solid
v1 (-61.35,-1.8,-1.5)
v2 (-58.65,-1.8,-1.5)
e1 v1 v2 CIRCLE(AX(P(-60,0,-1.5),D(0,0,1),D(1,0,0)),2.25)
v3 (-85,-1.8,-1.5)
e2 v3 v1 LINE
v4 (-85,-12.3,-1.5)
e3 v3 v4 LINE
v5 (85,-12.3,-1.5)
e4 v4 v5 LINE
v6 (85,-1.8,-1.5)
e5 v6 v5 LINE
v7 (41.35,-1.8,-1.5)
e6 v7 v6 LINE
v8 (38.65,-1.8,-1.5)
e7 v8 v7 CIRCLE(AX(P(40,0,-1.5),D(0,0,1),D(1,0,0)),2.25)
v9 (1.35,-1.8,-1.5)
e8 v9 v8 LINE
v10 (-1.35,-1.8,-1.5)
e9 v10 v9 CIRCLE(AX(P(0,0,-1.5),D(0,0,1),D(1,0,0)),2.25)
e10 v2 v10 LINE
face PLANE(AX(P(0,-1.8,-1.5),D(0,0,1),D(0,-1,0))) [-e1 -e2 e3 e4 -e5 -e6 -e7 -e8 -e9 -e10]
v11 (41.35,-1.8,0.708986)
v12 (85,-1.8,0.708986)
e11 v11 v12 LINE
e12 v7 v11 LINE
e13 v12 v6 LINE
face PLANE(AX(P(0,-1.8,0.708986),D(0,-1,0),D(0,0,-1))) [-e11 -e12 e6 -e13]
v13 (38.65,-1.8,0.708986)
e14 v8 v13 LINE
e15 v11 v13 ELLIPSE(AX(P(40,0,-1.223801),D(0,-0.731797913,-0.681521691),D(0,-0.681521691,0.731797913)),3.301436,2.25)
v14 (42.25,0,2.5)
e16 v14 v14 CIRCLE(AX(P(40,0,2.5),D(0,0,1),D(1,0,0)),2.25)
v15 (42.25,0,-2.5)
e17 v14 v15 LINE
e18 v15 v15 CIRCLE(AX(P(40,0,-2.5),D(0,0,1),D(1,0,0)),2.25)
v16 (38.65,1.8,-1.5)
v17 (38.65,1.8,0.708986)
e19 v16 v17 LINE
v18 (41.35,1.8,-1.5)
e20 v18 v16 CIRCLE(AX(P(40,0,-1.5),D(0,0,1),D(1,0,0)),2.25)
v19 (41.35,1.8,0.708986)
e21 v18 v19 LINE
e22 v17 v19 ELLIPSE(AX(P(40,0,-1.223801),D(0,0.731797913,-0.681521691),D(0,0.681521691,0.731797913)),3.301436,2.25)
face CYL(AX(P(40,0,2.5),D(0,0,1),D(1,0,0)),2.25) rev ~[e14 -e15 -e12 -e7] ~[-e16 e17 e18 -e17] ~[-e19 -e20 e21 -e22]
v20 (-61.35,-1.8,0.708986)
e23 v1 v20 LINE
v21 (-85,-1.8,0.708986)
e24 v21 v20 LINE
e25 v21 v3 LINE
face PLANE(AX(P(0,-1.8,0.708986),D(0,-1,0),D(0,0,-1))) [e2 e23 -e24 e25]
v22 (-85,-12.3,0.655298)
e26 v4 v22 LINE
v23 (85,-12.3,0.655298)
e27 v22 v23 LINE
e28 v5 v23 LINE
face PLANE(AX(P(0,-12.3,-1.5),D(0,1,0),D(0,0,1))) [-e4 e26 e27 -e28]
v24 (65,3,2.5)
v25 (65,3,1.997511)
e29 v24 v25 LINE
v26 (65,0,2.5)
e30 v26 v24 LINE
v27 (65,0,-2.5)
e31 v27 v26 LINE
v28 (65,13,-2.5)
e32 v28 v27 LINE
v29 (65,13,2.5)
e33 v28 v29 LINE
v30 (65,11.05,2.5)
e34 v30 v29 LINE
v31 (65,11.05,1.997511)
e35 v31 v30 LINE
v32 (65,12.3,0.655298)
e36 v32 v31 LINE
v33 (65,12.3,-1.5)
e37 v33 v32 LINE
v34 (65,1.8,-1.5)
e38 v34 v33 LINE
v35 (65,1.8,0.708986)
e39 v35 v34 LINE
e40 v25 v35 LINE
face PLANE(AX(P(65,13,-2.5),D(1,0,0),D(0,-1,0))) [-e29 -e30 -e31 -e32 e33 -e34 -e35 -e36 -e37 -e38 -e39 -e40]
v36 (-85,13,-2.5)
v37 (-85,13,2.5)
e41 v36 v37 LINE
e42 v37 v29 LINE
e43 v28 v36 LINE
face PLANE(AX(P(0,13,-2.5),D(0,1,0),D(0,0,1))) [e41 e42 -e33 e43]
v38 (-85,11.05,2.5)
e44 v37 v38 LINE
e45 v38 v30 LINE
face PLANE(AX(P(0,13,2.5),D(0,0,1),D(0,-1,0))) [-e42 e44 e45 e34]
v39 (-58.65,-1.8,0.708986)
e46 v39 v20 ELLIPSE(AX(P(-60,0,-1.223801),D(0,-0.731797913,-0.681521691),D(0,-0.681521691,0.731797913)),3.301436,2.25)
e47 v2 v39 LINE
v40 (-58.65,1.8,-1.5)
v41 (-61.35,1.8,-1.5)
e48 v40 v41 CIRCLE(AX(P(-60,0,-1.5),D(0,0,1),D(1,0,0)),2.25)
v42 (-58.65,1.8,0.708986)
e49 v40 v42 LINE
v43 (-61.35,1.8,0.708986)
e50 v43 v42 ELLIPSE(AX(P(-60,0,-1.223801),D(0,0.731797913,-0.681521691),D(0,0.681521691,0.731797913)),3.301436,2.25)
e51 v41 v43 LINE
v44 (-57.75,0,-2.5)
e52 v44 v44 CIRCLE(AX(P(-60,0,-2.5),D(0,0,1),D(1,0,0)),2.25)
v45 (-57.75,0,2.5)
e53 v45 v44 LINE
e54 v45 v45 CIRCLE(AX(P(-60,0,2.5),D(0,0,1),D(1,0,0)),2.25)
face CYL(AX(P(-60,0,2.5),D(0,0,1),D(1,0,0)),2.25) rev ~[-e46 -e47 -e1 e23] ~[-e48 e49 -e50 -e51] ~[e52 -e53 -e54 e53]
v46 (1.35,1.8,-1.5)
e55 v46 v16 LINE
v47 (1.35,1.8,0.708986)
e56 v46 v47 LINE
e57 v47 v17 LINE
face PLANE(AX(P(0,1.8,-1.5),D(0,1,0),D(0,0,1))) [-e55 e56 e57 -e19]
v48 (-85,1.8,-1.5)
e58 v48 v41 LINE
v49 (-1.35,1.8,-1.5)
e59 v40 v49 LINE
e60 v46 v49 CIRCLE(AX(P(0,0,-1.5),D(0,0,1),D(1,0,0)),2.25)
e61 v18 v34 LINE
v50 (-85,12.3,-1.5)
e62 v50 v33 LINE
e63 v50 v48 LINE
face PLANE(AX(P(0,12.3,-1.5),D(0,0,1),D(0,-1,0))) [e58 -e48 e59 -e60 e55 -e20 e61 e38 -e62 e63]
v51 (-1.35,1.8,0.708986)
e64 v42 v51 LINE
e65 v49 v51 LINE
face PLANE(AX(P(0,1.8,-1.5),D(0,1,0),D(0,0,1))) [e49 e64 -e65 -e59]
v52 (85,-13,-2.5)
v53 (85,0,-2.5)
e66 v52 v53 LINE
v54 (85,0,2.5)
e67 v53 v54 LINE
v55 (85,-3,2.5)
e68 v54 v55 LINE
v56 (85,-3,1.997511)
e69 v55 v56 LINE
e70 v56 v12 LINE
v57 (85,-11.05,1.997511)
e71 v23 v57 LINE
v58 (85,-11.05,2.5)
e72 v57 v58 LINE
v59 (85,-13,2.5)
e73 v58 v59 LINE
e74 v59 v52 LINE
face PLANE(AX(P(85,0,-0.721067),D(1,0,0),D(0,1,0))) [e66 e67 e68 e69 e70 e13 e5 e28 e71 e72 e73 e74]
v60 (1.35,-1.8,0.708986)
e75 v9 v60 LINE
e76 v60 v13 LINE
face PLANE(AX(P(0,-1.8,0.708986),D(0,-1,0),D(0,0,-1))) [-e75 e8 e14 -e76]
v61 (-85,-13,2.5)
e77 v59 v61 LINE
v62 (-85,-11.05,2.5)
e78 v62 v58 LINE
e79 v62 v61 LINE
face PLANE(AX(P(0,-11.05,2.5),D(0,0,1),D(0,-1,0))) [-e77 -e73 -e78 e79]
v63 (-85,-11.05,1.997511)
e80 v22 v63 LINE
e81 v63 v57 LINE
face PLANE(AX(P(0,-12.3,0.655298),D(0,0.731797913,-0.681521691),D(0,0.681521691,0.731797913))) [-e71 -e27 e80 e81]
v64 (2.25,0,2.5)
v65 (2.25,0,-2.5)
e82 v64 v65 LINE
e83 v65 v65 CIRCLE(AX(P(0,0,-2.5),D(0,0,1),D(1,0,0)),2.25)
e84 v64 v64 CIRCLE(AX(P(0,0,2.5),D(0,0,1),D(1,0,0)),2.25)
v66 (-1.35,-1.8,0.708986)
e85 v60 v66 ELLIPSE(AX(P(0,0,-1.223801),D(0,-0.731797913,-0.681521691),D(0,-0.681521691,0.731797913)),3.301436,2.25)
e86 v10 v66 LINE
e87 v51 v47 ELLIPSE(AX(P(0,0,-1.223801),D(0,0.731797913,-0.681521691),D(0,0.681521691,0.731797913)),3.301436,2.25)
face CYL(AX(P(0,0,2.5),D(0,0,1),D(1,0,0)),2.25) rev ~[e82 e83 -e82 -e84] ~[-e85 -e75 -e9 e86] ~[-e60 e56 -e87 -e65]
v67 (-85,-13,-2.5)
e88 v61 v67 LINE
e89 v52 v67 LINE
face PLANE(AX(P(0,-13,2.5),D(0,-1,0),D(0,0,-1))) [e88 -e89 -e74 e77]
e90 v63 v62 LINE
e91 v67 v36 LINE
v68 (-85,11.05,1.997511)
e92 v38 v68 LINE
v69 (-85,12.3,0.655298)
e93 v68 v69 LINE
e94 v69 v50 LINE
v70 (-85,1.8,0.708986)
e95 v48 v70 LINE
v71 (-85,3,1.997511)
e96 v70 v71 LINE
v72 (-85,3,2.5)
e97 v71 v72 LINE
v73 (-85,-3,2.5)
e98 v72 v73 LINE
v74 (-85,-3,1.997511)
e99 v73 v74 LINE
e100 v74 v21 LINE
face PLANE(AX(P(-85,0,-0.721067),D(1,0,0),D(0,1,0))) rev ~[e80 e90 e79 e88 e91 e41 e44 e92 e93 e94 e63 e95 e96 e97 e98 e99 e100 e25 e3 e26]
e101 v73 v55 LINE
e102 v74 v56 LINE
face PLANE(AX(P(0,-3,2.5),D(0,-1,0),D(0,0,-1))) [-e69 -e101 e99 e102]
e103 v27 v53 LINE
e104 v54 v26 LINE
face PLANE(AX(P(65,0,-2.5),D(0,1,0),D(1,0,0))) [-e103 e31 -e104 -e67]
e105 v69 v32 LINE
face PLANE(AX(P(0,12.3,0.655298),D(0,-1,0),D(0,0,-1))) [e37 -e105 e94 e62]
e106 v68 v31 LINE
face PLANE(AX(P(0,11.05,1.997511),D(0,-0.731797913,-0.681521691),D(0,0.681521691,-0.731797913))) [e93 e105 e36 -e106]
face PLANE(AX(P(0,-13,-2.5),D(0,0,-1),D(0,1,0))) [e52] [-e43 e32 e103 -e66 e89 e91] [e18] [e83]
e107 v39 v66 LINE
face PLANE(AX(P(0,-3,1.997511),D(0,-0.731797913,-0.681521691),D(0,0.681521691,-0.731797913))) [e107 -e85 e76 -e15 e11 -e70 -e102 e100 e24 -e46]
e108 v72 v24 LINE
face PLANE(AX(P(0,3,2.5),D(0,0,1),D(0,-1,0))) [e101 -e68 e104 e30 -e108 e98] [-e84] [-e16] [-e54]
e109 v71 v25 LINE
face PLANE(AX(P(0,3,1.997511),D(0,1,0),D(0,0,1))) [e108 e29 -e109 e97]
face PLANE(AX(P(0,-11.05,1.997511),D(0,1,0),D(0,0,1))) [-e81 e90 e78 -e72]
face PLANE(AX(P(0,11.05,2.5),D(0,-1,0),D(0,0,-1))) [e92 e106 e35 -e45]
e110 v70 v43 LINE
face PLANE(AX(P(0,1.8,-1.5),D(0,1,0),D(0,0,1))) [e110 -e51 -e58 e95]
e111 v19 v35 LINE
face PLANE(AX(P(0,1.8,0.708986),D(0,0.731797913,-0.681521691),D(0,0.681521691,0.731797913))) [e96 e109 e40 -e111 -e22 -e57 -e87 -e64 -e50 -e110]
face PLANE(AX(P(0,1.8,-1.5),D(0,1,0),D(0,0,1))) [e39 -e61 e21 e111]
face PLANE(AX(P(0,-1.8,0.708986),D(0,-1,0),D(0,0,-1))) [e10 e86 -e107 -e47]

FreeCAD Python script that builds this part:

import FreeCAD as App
import Part
import Sketcher

V = App.Vector


def add_polygon(sketch, points):
    """Adds a closed chain of lines whose ends are joined by coincident constraints."""
    first, n = sketch.GeometryCount, len(points)
    for a, b in zip(points, points[1:] + points[:1]):
        sketch.addGeometry(Part.LineSegment(App.Vector(*a, 0), App.Vector(*b, 0)), False)
    for i in range(n):
        sketch.addConstraint(Sketcher.Constraint("Coincident", first + i, 2, first + (i + 1) % n, 1))

doc = App.newDocument("Part")
params = doc.addObject("Spreadsheet::Sheet", "Params")
for row, (alias, value) in enumerate([
    ("sketch1_width", "6 mm"),
    ("sketch1_width2", "26 mm"),
    ("sketch1_height", "5 mm"),
    ("sketch1_width3", "10.5 mm"),
    ("sketch1_width4", "1.95 mm"),
    ("pad1_length", "170 mm"),
    ("sketch2_width", "20 mm"),
    ("sketch2_height", "13 mm"),
    ("sketch3_diameter", "4.5 mm"),
], start=1):
    params.set(f"A{row}", alias)
    params.set(f"B{row}", "=" + value)
    params.setAlias(f"B{row}", alias)

body = doc.addObject("PartDesign::Body", "Body")

# Sketch on YZ plane
sketch1 = body.newObject("Sketcher::SketchObject", "Sketch")
sketch1.AttachmentSupport = (doc.getObject("YZ_Plane"), [""])
sketch1.MapMode = "FlatFace"
add_polygon(sketch1, [(13, -2.5), (13, 2.5), (11.1, 2.5), (11.1, 2), (12.3, 0.7), (12.3, -1.5), (1.8, -1.5), (1.8, 0.7), (3, 2), (3, 2.5), (-3, 2.5), (-3, 2), (-1.8, 0.7), (-1.8, -1.5), (-12.3, -1.5), (-12.3, 0.7), (-11.1, 2), (-11.1, 2.5), (-13, 2.5), (-13, -2.5)])  # lines 0-19
sketch1.addConstraint([
    Sketcher.Constraint("Vertical", 0),
    Sketcher.Constraint("Horizontal", 1),
    Sketcher.Constraint("Vertical", 2),
    Sketcher.Constraint("Vertical", 4),
    Sketcher.Constraint("Horizontal", 5),
    Sketcher.Constraint("Vertical", 6),
    Sketcher.Constraint("Vertical", 8),
    Sketcher.Constraint("Horizontal", 9),
    Sketcher.Constraint("Vertical", 10),
    Sketcher.Constraint("Vertical", 12),
    Sketcher.Constraint("Horizontal", 13),
    Sketcher.Constraint("Vertical", 14),
    Sketcher.Constraint("Vertical", 16),
    Sketcher.Constraint("Horizontal", 17),
    Sketcher.Constraint("Vertical", 18),
    Sketcher.Constraint("Horizontal", 19),
    Sketcher.Constraint("Symmetric", 0, 2, 18, 2, -1, 1),
    Sketcher.Constraint("Symmetric", 7, 2, 10, 2, -2),
    Sketcher.Constraint("Symmetric", 6, 2, 11, 2, -2),
    Sketcher.Constraint("Symmetric", 4, 2, 13, 2, -2),
    Sketcher.Constraint("Symmetric", 2, 2, 15, 2, -2),
    Sketcher.Constraint("Parallel", 3, 11),
    Sketcher.Constraint("Parallel", 7, 15),
    Sketcher.Constraint("Horizontal", 2, 2, 7, 2),
    Sketcher.Constraint("Horizontal", 1, 2, 8, 2),
    Sketcher.Constraint("Horizontal", 9, 2, 16, 2),
    Sketcher.Constraint("DistanceX", 9, 2, 9, 1, 6.0),
    Sketcher.Constraint("DistanceX", 19, 1, 19, 2, 26.0),
    Sketcher.Constraint("DistanceY", 0, 1, 0, 2, 5.0),
    Sketcher.Constraint("DistanceX", 5, 2, 5, 1, 10.5),
    Sketcher.Constraint("DistanceY", 4, 2, 0, 2, 4.0),
    Sketcher.Constraint("DistanceX", 1, 2, 1, 1, 1.95),
    Sketcher.Constraint("DistanceX", -1, 1, 3, 2, 12.3),
    Sketcher.Constraint("DistanceY", 2, 2, 2, 1, 0.502489),
    Sketcher.Constraint("Distance", 3, 1.834131),
])
sketch1.setExpression("Constraints[46]", "Params.sketch1_width")
sketch1.setExpression("Constraints[47]", "Params.sketch1_width2")
sketch1.setExpression("Constraints[48]", "Params.sketch1_height")
sketch1.setExpression("Constraints[49]", "Params.sketch1_width3")
sketch1.setExpression("Constraints[51]", "Params.sketch1_width4")
pad1 = body.newObject("PartDesign::Pad", "Pad")
pad1.Profile = sketch1
pad1.setExpression("Length", "Params.pad1_length")
pad1.Midplane = True

# Sketch on XY plane
sketch2 = body.newObject("Sketcher::SketchObject", "Sketch001")
sketch2.AttachmentSupport = (doc.getObject("XY_Plane"), [""])
sketch2.MapMode = "FlatFace"
sketch2.AttachmentOffset = App.Placement(V(0, 0, -2.5), App.Rotation())
add_polygon(sketch2, [(65, 0), (65, 13), (85, 13), (85, 0)])  # lines 0-3
sketch2.addConstraint([
    Sketcher.Constraint("Vertical", 0),
    Sketcher.Constraint("Horizontal", 1),
    Sketcher.Constraint("Vertical", 2),
    Sketcher.Constraint("Horizontal", 3),
    Sketcher.Constraint("PointOnObject", 2, 2, -1),
    Sketcher.Constraint("DistanceX", 1, 1, 1, 2, 20.0),
    Sketcher.Constraint("DistanceY", 0, 1, 0, 2, 13.0),
    Sketcher.Constraint("DistanceX", -1, 1, 0, 2, 65.0),
])
sketch2.setExpression("Constraints[9]", "Params.sketch2_width")
sketch2.setExpression("Constraints[10]", "Params.sketch2_height")
pocket1 = body.newObject("PartDesign::Pocket", "Pocket")
pocket1.Profile = sketch2
pocket1.Type = "ThroughAll"
pocket1.Reversed = True

# Sketch on XY plane
sketch3 = body.newObject("Sketcher::SketchObject", "Sketch002")
sketch3.AttachmentSupport = (doc.getObject("XY_Plane"), [""])
sketch3.MapMode = "FlatFace"
sketch3.AttachmentOffset = App.Placement(V(0, 0, 2.5), App.Rotation())
sketch3.addGeometry([
    Part.Circle(V(-60, 0, 0), V(0, 0, 1), 2.2),
    Part.Circle(V(0, 0, 0), V(0, 0, 1), 2.2),
    Part.Circle(V(40, 0, 0), V(0, 0, 1), 2.2),
], False)
sketch3.addConstraint([
    Sketcher.Constraint("Coincident", 1, 3, -1, 1),
    Sketcher.Constraint("Equal", 0, 1),
    Sketcher.Constraint("Equal", 1, 2),
    Sketcher.Constraint("PointOnObject", 0, 3, -1),
    Sketcher.Constraint("PointOnObject", 2, 3, -1),
    Sketcher.Constraint("Diameter", 0, 4.5),
    Sketcher.Constraint("DistanceX", 0, 3, -1, 1, 60.0),
    Sketcher.Constraint("DistanceX", -1, 1, 2, 3, 40.0),
])
sketch3.setExpression("Constraints[5]", "Params.sketch3_diameter")
pocket2 = body.newObject("PartDesign::Pocket", "Pocket001")
pocket2.Profile = sketch3
pocket2.Type = "ThroughAll"

doc.recompute()
